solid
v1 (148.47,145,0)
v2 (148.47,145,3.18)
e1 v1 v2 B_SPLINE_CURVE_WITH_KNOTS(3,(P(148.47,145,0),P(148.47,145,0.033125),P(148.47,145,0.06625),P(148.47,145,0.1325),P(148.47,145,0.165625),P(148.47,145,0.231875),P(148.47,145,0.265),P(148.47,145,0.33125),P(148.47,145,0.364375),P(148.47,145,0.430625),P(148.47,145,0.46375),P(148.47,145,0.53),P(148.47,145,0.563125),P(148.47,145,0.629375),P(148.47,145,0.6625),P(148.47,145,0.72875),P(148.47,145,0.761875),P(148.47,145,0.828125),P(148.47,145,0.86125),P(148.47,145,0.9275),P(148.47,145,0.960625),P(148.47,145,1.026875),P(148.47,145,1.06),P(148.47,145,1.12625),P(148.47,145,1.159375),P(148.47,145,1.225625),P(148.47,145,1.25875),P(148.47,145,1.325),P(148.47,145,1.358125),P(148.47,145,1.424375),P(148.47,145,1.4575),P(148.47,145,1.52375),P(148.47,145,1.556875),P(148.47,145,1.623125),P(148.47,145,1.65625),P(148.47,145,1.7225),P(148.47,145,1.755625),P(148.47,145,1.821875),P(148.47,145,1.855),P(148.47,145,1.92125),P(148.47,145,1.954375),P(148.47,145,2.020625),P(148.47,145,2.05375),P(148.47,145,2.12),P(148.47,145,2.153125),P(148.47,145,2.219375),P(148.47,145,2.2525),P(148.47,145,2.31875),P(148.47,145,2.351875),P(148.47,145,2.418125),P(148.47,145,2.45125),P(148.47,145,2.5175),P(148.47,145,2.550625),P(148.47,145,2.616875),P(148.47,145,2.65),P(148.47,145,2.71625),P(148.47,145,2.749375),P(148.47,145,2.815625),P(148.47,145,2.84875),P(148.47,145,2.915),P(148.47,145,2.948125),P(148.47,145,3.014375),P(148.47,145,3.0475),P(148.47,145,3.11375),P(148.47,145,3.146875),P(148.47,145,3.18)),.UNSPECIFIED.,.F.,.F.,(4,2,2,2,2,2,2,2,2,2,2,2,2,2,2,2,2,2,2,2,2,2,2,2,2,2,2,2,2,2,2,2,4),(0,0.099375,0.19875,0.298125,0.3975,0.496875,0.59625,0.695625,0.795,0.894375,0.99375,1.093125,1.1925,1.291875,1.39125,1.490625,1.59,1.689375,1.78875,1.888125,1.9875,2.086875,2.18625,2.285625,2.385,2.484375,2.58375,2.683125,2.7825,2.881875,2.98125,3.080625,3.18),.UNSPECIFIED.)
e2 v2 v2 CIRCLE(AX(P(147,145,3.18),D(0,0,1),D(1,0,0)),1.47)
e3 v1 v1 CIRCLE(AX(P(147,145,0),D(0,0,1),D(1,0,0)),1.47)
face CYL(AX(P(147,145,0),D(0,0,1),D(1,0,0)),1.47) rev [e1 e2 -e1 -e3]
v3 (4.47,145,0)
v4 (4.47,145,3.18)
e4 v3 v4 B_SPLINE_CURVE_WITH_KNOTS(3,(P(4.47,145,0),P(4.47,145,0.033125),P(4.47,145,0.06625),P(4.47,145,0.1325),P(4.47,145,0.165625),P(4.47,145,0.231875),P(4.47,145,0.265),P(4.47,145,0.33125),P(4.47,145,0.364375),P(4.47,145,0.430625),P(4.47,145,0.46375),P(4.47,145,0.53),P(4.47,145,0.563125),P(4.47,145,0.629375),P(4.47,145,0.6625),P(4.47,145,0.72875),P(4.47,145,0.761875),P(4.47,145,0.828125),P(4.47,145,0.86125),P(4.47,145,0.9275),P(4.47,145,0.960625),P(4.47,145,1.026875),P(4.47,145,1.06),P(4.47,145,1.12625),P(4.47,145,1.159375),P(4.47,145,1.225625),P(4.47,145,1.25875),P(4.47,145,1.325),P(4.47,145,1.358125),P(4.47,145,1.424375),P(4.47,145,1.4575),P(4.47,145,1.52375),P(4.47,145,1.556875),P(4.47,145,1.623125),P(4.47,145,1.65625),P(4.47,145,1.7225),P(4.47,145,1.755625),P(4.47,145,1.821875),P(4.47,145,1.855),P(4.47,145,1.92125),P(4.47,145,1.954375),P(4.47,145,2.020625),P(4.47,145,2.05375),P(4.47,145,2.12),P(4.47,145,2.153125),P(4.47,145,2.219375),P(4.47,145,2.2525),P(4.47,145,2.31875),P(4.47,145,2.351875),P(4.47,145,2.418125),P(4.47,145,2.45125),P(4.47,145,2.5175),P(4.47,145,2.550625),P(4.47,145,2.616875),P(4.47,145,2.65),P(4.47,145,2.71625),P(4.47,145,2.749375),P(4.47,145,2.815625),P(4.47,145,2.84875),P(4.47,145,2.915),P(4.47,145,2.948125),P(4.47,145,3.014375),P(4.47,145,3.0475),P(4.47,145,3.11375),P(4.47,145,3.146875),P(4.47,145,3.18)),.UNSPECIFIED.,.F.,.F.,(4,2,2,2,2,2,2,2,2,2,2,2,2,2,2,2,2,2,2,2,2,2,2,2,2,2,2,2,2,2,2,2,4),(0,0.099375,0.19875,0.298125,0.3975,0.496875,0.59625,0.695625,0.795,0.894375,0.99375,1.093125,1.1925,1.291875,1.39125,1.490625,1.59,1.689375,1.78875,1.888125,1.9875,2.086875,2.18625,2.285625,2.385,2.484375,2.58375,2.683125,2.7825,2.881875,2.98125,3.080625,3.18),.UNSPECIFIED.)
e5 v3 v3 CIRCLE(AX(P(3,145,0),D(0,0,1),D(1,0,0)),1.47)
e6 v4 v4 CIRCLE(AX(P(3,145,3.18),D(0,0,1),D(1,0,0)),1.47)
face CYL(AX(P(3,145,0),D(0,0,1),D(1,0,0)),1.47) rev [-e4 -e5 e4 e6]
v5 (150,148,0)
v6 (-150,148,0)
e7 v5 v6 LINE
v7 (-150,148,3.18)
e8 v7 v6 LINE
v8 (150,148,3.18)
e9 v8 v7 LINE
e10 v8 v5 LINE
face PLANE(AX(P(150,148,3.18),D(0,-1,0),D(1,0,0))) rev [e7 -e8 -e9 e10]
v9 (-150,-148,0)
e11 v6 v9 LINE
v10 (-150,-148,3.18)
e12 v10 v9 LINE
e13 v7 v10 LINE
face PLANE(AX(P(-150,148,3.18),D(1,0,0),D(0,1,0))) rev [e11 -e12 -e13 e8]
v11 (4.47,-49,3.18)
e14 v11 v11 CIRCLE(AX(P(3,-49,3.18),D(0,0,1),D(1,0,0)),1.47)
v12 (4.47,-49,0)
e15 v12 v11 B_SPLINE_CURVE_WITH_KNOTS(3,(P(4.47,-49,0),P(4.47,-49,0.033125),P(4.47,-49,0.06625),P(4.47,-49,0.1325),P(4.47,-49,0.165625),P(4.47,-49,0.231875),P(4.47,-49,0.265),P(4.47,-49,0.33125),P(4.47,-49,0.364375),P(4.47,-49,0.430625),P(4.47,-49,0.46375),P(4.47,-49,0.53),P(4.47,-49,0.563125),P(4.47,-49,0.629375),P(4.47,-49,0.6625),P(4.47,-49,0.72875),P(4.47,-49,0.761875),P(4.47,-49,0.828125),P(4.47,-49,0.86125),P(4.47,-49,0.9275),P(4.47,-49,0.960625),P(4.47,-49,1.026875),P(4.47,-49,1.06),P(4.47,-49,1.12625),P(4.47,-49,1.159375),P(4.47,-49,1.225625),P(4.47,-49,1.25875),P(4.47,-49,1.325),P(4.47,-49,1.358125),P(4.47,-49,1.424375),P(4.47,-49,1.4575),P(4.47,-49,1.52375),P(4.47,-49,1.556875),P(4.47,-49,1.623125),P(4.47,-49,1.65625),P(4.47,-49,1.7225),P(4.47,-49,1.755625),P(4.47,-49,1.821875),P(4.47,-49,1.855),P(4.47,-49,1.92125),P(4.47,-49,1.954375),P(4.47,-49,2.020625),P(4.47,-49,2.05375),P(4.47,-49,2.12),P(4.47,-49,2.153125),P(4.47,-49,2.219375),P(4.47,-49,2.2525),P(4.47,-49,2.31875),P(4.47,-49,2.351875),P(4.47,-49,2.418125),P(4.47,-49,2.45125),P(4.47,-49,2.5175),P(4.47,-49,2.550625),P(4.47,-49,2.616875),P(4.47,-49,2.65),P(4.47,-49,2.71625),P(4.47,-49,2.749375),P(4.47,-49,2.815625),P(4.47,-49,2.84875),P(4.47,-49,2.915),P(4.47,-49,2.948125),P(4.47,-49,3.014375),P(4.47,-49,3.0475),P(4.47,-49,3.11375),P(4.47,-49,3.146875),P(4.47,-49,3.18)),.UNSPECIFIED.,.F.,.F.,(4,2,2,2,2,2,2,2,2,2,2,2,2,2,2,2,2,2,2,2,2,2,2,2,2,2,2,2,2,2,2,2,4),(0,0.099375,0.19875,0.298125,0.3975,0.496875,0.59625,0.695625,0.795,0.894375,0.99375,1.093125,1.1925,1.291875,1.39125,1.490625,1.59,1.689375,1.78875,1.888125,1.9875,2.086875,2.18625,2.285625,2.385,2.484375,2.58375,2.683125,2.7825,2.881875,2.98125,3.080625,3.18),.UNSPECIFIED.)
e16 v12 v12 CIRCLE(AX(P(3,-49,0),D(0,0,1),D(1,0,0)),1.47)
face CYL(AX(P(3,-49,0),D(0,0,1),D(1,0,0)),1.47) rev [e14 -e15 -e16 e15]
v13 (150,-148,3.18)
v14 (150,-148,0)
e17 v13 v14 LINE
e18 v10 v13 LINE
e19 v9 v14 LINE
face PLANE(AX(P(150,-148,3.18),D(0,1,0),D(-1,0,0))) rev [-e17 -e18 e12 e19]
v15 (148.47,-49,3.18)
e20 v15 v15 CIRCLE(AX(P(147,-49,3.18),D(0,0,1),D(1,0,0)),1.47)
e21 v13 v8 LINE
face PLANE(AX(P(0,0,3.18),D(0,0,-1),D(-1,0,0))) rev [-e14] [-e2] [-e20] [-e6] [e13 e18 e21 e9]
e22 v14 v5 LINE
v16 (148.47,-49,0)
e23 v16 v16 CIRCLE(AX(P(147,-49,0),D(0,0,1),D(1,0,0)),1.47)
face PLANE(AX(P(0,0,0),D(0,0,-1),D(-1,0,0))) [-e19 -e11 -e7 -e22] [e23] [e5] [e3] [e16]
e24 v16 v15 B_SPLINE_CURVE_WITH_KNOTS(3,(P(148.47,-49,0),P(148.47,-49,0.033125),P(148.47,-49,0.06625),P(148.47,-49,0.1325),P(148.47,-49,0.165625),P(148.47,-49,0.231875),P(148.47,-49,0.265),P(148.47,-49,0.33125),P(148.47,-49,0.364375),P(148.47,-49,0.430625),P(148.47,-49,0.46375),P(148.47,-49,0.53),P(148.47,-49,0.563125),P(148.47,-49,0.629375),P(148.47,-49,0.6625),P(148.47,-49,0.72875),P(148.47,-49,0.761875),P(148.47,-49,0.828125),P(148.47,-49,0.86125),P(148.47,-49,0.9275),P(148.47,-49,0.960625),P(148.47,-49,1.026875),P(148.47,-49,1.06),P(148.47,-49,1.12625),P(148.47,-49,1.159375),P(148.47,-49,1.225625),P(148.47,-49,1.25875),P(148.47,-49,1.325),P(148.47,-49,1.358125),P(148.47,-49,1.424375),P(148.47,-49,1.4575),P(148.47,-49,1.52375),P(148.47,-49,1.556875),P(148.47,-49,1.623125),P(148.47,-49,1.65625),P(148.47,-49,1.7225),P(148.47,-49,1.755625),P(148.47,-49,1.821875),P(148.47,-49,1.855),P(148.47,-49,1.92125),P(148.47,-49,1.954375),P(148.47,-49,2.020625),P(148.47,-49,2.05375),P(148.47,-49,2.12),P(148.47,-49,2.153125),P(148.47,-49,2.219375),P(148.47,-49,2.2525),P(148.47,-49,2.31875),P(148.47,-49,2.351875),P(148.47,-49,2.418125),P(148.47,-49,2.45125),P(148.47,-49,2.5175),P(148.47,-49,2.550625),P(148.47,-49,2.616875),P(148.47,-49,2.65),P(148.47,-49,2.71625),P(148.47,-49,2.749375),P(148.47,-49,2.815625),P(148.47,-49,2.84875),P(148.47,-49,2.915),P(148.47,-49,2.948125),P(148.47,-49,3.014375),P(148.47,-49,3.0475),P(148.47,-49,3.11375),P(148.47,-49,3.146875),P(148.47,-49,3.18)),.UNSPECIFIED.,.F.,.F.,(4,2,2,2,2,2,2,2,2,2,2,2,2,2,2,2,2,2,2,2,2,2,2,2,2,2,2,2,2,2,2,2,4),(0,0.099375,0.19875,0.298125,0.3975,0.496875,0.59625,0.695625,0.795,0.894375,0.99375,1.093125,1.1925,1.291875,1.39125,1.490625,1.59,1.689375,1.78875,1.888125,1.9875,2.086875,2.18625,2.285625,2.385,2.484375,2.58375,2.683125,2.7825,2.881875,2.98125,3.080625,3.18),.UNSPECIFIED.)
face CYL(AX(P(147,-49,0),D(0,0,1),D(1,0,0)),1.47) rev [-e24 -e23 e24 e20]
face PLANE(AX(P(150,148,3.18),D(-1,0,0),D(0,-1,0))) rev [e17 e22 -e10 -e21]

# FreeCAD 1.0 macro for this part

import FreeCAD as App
import Part
import Sketcher
Q = App.Units.Quantity

doc = App.newDocument("Part")
body = doc.addObject("PartDesign::Body", "Body")

sketch1 = doc.addObject("Sketcher::SketchObject", "Sketch")
body.addObject(sketch1)
sketch1.AttachmentSupport = (doc.XY_Plane, [""])
sketch1.MapMode = "FlatFace"
sketch1.addGeometry(Part.LineSegment(App.Vector(-150, 148, 0), App.Vector(-150, -148, 0)), False)
sketch1.addGeometry(Part.LineSegment(App.Vector(-150, -148, 0), App.Vector(150, -148, 0)), False)
sketch1.addGeometry(Part.LineSegment(App.Vector(150, -148, 0), App.Vector(150, 148, 0)), False)
sketch1.addGeometry(Part.LineSegment(App.Vector(150, 148, 0), App.Vector(-150, 148, 0)), False)
sketch1.addConstraint(Sketcher.Constraint("Coincident", 0, 2, 1, 1))
sketch1.addConstraint(Sketcher.Constraint("Coincident", 1, 2, 2, 1))
sketch1.addConstraint(Sketcher.Constraint("Coincident", 2, 2, 3, 1))
sketch1.addConstraint(Sketcher.Constraint("Coincident", 3, 2, 0, 1))
sketch1.addConstraint(Sketcher.Constraint("Vertical", 0))
sketch1.addConstraint(Sketcher.Constraint("Horizontal", 1))
sketch1.addConstraint(Sketcher.Constraint("Vertical", 2))
sketch1.addConstraint(Sketcher.Constraint("Horizontal", 3))
sketch1.addConstraint(Sketcher.Constraint("Symmetric", 0, 2, 2, 2, -1, 1))
sketch1.addConstraint(Sketcher.Constraint("DistanceX", 1, 1, 1, 2, Q("300 mm")))
sketch1.addConstraint(Sketcher.Constraint("DistanceY", 0, 2, 0, 1, Q("296 mm")))
pad1 = doc.addObject("PartDesign::Pad", "Pad")
body.addObject(pad1)
pad1.Profile = sketch1
pad1.Length = 3.18

sketch2 = doc.addObject("Sketcher::SketchObject", "Sketch001")
body.addObject(sketch2)
sketch2.AttachmentSupport = (doc.XY_Plane, [""])
sketch2.MapMode = "FlatFace"
sketch2.AttachmentOffset = App.Placement(App.Vector(0, 0, 3.18), App.Rotation())
sketch2.addGeometry(Part.Circle(App.Vector(147, 145, 0), App.Vector(0, 0, 1), 1.5), False)
sketch2.addGeometry(Part.Circle(App.Vector(147, -49, 0), App.Vector(0, 0, 1), 1.5), False)
sketch2.addGeometry(Part.Circle(App.Vector(3, -49, 0), App.Vector(0, 0, 1), 1.5), False)
sketch2.addGeometry(Part.Circle(App.Vector(3, 145, 0), App.Vector(0, 0, 1), 1.5), False)
sketch2.addConstraint(Sketcher.Constraint("Equal", 0, 1))
sketch2.addConstraint(Sketcher.Constraint("Equal", 1, 2))
sketch2.addConstraint(Sketcher.Constraint("Equal", 2, 3))
sketch2.addConstraint(Sketcher.Constraint("Horizontal", 1, 3, 2, 3))
sketch2.addConstraint(Sketcher.Constraint("Horizontal", 0, 3, 3, 3))
sketch2.addConstraint(Sketcher.Constraint("Vertical", 0, 3, 1, 3))
sketch2.addConstraint(Sketcher.Constraint("Vertical", 2, 3, 3, 3))
sketch2.addConstraint(Sketcher.Constraint("Diameter", 0, Q("2.94 mm")))
sketch2.addConstraint(Sketcher.Constraint("DistanceX", -1, 1, 0, 3, Q("147 mm")))
sketch2.addConstraint(Sketcher.Constraint("DistanceY", -1, 1, 0, 3, Q("145 mm")))
sketch2.addConstraint(Sketcher.Constraint("DistanceY", 1, 3, -1, 1, Q("49 mm")))
sketch2.addConstraint(Sketcher.Constraint("DistanceX", -1, 1, 2, 3, Q("3 mm")))
pocket1 = doc.addObject("PartDesign::Pocket", "Pocket")
body.addObject(pocket1)
pocket1.Profile = sketch2
pocket1.Length = 3.18

doc.recompute()
